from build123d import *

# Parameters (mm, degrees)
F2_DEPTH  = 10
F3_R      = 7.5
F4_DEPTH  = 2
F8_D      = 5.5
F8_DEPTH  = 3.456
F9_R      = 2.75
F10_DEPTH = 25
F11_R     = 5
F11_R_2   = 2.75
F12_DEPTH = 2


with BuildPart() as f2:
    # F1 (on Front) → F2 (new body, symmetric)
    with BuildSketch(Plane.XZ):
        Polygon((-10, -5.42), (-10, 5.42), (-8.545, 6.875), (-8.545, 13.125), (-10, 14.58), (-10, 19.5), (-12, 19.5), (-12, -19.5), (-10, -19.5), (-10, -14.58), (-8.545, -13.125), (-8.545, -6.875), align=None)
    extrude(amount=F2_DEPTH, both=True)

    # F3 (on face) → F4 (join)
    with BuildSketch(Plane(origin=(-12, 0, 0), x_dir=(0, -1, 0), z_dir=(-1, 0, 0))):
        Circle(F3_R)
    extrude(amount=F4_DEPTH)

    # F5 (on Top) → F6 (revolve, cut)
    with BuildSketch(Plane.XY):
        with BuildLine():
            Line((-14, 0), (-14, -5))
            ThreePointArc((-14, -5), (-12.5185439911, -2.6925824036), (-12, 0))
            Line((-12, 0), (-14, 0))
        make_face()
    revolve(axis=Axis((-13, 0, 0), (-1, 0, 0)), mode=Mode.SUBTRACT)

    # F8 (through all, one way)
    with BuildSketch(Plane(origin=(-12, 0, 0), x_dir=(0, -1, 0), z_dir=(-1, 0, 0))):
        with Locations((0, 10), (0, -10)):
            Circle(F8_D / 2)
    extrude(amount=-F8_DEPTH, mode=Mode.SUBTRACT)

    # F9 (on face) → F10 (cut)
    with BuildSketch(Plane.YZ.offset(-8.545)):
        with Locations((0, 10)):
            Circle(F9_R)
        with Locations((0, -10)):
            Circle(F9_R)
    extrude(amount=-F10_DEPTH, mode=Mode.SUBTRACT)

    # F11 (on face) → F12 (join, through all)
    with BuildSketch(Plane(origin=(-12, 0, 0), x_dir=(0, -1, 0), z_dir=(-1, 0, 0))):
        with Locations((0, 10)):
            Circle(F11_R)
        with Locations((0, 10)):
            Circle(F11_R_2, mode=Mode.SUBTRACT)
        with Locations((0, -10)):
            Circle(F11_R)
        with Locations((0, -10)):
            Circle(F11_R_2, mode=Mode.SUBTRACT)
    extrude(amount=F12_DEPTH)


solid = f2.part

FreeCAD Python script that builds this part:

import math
import FreeCAD as App
import Part
import Sketcher
Q = App.Units.Quantity


def add_polygon(sketch, points):
    """Adds a closed chain of lines whose ends are joined by coincident constraints."""
    first, n = sketch.GeometryCount, len(points)
    for a, b in zip(points, points[1:] + points[:1]):
        sketch.addGeometry(Part.LineSegment(App.Vector(*a, 0), App.Vector(*b, 0)), False)
    for i in range(n):
        sketch.addConstraint(Sketcher.Constraint("Coincident", first + i, 2, first + (i + 1) % n, 1))

doc = App.newDocument("Part")
body = doc.addObject("PartDesign::Body", "Body")

sketch1 = body.newObject("Sketcher::SketchObject", "Sketch")
sketch1.AttachmentSupport = (doc.getObject("XZ_Plane"), [""])
sketch1.MapMode = "FlatFace"
add_polygon(sketch1, [(-10, -5.4), (-10, 5.4), (-8.5, 6.9), (-8.5, 13.1), (-10, 14.6), (-10, 19.5), (-12, 19.5), (-12, -19.5), (-10, -19.5), (-10, -14.6), (-8.5, -13.1), (-8.5, -6.9)])
sketch1.addConstraint([
    Sketcher.Constraint("Vertical", 0),
    Sketcher.Constraint("Vertical", 2),
    Sketcher.Constraint("Vertical", 4),
    Sketcher.Constraint("Horizontal", 5),
    Sketcher.Constraint("Vertical", 6),
    Sketcher.Constraint("Horizontal", 7),
    Sketcher.Constraint("Vertical", 8),
    Sketcher.Constraint("Vertical", 10),
    Sketcher.Constraint("Symmetric", 4, 2, 7, 2, -1),
    Sketcher.Constraint("Symmetric", 2, 2, 9, 2, -1),
    Sketcher.Constraint("Perpendicular", 1, 3),
    Sketcher.Constraint("Perpendicular", 3, 9),
    Sketcher.Constraint("Perpendicular", 9, 11),
    Sketcher.Constraint("Vertical", 0, 2, 3, 2),
    Sketcher.Constraint("Equal", 4, 8),
    Sketcher.Constraint("Equal", 2, 10),
    Sketcher.Constraint("DistanceX", 5, 2, 5, 1, Q("2 mm")),
    Sketcher.Constraint("DistanceY", 6, 2, 6, 1, Q("39 mm")),
    Sketcher.Constraint("DistanceX", 0, 2, -1, 1, Q("10 mm")),
    Sketcher.Constraint("DistanceY", 8, 2, 0, 2, Q("20 mm")),
    Sketcher.Constraint("DistanceY", 0, 1, 0, 2, Q("10.84 mm")),
    Sketcher.Constraint("DistanceY", 2, 1, 2, 2, Q("6.25 mm")),
])
pad1 = body.newObject("PartDesign::Pad", "Pad")
pad1.Profile = sketch1
pad1.Length = 20
pad1.Midplane = True

sketch2 = body.newObject("Sketcher::SketchObject", "Sketch001")
sketch2.AttachmentSupport = (doc.getObject("YZ_Plane"), [""])
sketch2.MapMode = "FlatFace"
sketch2.AttachmentOffset = App.Placement(App.Vector(0, 0, -12), App.Rotation())
sketch2.addGeometry(Part.Circle(App.Vector(0, 0, 0), App.Vector(0, 0, 1), 8), False)
sketch2.addConstraint([
    Sketcher.Constraint("Coincident", 0, 3, -1, 1),
    Sketcher.Constraint("Diameter", 0, Q("15 mm")),
])
pad2 = body.newObject("PartDesign::Pad", "Pad001")
pad2.Profile = sketch2
pad2.Length = 2
pad2.Reversed = True

sketch3 = body.newObject("Sketcher::SketchObject", "Sketch002")
sketch3.AttachmentSupport = (doc.getObject("XY_Plane"), [""])
sketch3.MapMode = "FlatFace"
sketch3.addGeometry([
    Part.LineSegment(App.Vector(-14, 0, 0), App.Vector(-14, -5, 0)),
    Part.ArcOfCircle(Part.Circle(App.Vector(-19.2, 0, 0), App.Vector(0, 0, 1), 7.2), math.radians(-44), math.radians(0)),
    Part.LineSegment(App.Vector(-12, 0, 0), App.Vector(-14, 0, 0)),
], False)
sketch3.addConstraint([
    Sketcher.Constraint("Coincident", 0, 2, 1, 1),
    Sketcher.Constraint("Coincident", 1, 2, 2, 1),
    Sketcher.Constraint("Coincident", 2, 2, 0, 1),
    Sketcher.Constraint("Vertical", 0),
    Sketcher.Constraint("Horizontal", 2),
    Sketcher.Constraint("PointOnObject", 1, 3, -1),
    Sketcher.Constraint("PointOnObject", 1, 2, -1),
    Sketcher.Constraint("DistanceX", 2, 2, 2, 1, Q("2 mm")),
    Sketcher.Constraint("DistanceY", 0, 2, 0, 1, Q("5 mm")),
    Sketcher.Constraint("DistanceX", 0, 2, -1, 1, Q("14 mm")),
])
groove = body.newObject("PartDesign::Groove", "Groove")
groove.Profile = sketch3
groove.ReferenceAxis = (sketch3, ["H_Axis"])
groove.Angle = 360

sketch4 = body.newObject("Sketcher::SketchObject", "Sketch003")
sketch4.AttachmentSupport = (doc.getObject("YZ_Plane"), [""])
sketch4.MapMode = "FlatFace"
sketch4.AttachmentOffset = App.Placement(App.Vector(0, 0, -12), App.Rotation())
sketch4.addGeometry([
    Part.Circle(App.Vector(0, -10, 0), App.Vector(0, 0, 1), 2.8),
    Part.Circle(App.Vector(0, 10, 0), App.Vector(0, 0, 1), 2.8),
], False)
sketch4.addConstraint([
    Sketcher.Constraint("Equal", 0, 1),
    Sketcher.Constraint("Symmetric", 0, 3, 1, 3, -1, 1),
    Sketcher.Constraint("PointOnObject", 0, 3, -2),
    Sketcher.Constraint("Diameter", 0, Q("5.5 mm")),
    Sketcher.Constraint("DistanceY", 0, 3, -1, 1, Q("10 mm")),
])
pocket1 = body.newObject("PartDesign::Pocket", "Pocket")
pocket1.Profile = sketch4
pocket1.Type = "ThroughAll"
pocket1.Reversed = True

sketch5 = body.newObject("Sketcher::SketchObject", "Sketch004")
sketch5.AttachmentSupport = (doc.getObject("YZ_Plane"), [""])
sketch5.MapMode = "FlatFace"
sketch5.AttachmentOffset = App.Placement(App.Vector(0, 0, -8.545), App.Rotation())
sketch5.addGeometry([
    Part.Circle(App.Vector(0, 10, 0), App.Vector(0, 0, 1), 2.8),
    Part.Circle(App.Vector(0, -10, 0), App.Vector(0, 0, 1), 2.8),
], False)
sketch5.addConstraint([
    Sketcher.Constraint("Equal", 0, 1),
    Sketcher.Constraint("Symmetric", 0, 3, 1, 3, -1, 1),
    Sketcher.Constraint("PointOnObject", 0, 3, -2),
    Sketcher.Constraint("Diameter", 0, Q("5.5 mm")),
    Sketcher.Constraint("DistanceY", -1, 1, 0, 3, Q("10 mm")),
])
pocket2 = body.newObject("PartDesign::Pocket", "Pocket001")
pocket2.Profile = sketch5
pocket2.Length = 25

sketch6 = body.newObject("Sketcher::SketchObject", "Sketch005")
sketch6.AttachmentSupport = (doc.getObject("YZ_Plane"), [""])
sketch6.MapMode = "FlatFace"
sketch6.AttachmentOffset = App.Placement(App.Vector(0, 0, -12), App.Rotation())
sketch6.addGeometry([
    Part.Circle(App.Vector(0, 10, 0), App.Vector(0, 0, 1), 5),
    Part.Circle(App.Vector(0, 10, 0), App.Vector(0, 0, 1), 2.8),
    Part.Circle(App.Vector(0, -10, 0), App.Vector(0, 0, 1), 5),
    Part.Circle(App.Vector(0, -10, 0), App.Vector(0, 0, 1), 2.8),
], False)
sketch6.addConstraint([
    Sketcher.Constraint("Coincident", 1, 3, 0, 3),
    Sketcher.Constraint("Coincident", 3, 3, 2, 3),
    Sketcher.Constraint("Equal", 0, 2),
    Sketcher.Constraint("Equal", 1, 3),
    Sketcher.Constraint("Symmetric", 0, 3, 2, 3, -1, 1),
    Sketcher.Constraint("PointOnObject", 0, 3, -2),
    Sketcher.Constraint("Diameter", 0, Q("10 mm")),
    Sketcher.Constraint("Diameter", 1, Q("5.5 mm")),
    Sketcher.Constraint("DistanceY", -1, 1, 0, 3, Q("10 mm")),
])
pad3 = body.newObject("PartDesign::Pad", "Pad002")
pad3.Profile = sketch6
pad3.Length = 2
pad3.Reversed = True

doc.recompute()
